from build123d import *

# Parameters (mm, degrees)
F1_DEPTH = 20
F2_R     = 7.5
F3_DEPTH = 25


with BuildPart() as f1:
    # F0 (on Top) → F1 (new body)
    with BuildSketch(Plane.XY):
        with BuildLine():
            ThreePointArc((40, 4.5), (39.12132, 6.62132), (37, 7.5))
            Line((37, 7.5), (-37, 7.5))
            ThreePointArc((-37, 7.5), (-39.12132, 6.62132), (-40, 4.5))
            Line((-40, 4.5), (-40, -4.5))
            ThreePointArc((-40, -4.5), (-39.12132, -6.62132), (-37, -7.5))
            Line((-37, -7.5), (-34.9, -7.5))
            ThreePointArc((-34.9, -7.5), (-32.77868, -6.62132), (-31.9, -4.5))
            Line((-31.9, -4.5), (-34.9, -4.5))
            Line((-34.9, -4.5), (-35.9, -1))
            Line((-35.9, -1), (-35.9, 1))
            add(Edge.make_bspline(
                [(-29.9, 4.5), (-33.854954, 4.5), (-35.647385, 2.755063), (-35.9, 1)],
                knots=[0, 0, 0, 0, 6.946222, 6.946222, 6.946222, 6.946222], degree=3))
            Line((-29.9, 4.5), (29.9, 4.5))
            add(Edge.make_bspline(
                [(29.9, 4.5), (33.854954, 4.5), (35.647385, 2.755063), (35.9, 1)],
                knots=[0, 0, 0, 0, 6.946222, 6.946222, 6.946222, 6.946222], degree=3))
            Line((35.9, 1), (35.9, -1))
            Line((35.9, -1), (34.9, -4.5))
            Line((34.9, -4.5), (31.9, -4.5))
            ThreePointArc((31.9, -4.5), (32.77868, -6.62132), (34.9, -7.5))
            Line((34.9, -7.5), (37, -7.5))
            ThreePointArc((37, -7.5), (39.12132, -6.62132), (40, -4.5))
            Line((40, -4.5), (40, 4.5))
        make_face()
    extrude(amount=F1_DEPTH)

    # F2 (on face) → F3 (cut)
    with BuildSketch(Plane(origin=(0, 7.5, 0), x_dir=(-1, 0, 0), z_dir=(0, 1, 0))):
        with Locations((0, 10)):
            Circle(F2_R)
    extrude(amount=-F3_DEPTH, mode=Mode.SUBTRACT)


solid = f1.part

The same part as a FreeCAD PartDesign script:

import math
import FreeCAD as App
import Part
import Sketcher

doc = App.newDocument("Part")
body = doc.addObject("PartDesign::Body", "Body")

# Sketch on XY plane
sketch1 = body.newObject("Sketcher::SketchObject", "Sketch")
sketch1.AttachmentSupport = (doc.getObject("XY_Plane"), [""])
sketch1.MapMode = "FlatFace"
sketch1.addGeometry(Part.ArcOfCircle(Part.Circle(App.Vector(36.999999, 4.499999, 0), App.Vector(0, 0, 1), 3.000001), math.radians(0.000022), math.radians(89.999978)), False)
sketch1.addGeometry(Part.LineSegment(App.Vector(37, 7.5, 0), App.Vector(-37, 7.5, 0)), False)
sketch1.addGeometry(Part.ArcOfCircle(Part.Circle(App.Vector(-36.999999, 4.499999, 0), App.Vector(0, 0, 1), 3.000001), math.radians(90.000022), math.radians(179.999978)), False)
sketch1.addGeometry(Part.LineSegment(App.Vector(-40, 4.5, 0), App.Vector(-40, -4.5, 0)), False)
sketch1.addGeometry(Part.ArcOfCircle(Part.Circle(App.Vector(-36.999999, -4.499999, 0), App.Vector(0, 0, 1), 3.000001), math.radians(-179.999978), math.radians(-90.000022)), False)
sketch1.addGeometry(Part.LineSegment(App.Vector(-37, -7.5, 0), App.Vector(-34.9, -7.5, 0)), False)
sketch1.addGeometry(Part.ArcOfCircle(Part.Circle(App.Vector(-34.900001, -4.499999, 0), App.Vector(0, 0, 1), 3.000001), math.radians(-89.999978), math.radians(-0.000022)), False)
sketch1.addGeometry(Part.LineSegment(App.Vector(-31.9, -4.5, 0), App.Vector(-34.9, -4.5, 0)), False)
sketch1.addGeometry(Part.LineSegment(App.Vector(-34.9, -4.5, 0), App.Vector(-35.9, -1, 0)), False)
sketch1.addGeometry(Part.LineSegment(App.Vector(-35.9, -1, 0), App.Vector(-35.9, 1, 0)), False)
sketch1.addGeometry(Part.BSplineCurve([App.Vector(-29.9, 4.5, 0), App.Vector(-33.854954, 4.5, 0), App.Vector(-35.647385, 2.755063, 0), App.Vector(-35.9, 1, 0)], [4, 4], [0, 6.946222], False, 3, [1, 1, 1, 1], False), False)
sketch1.addGeometry(Part.LineSegment(App.Vector(-29.9, 4.5, 0), App.Vector(29.9, 4.5, 0)), False)
sketch1.addGeometry(Part.BSplineCurve([App.Vector(29.9, 4.5, 0), App.Vector(33.854954, 4.5, 0), App.Vector(35.647385, 2.755063, 0), App.Vector(35.9, 1, 0)], [4, 4], [0, 6.946222], False, 3, [1, 1, 1, 1], False), False)
sketch1.addGeometry(Part.LineSegment(App.Vector(35.9, 1, 0), App.Vector(35.9, -1, 0)), False)
sketch1.addGeometry(Part.LineSegment(App.Vector(35.9, -1, 0), App.Vector(34.9, -4.5, 0)), False)
sketch1.addGeometry(Part.LineSegment(App.Vector(34.9, -4.5, 0), App.Vector(31.9, -4.5, 0)), False)
sketch1.addGeometry(Part.ArcOfCircle(Part.Circle(App.Vector(34.900001, -4.499999, 0), App.Vector(0, 0, 1), 3.000001), math.radians(-179.999978), math.radians(-90.000022)), False)
sketch1.addGeometry(Part.LineSegment(App.Vector(34.9, -7.5, 0), App.Vector(37, -7.5, 0)), False)
sketch1.addGeometry(Part.ArcOfCircle(Part.Circle(App.Vector(36.999999, -4.499999, 0), App.Vector(0, 0, 1), 3.000001), math.radians(-89.999978), math.radians(-0.000022)), False)
sketch1.addGeometry(Part.LineSegment(App.Vector(40, -4.5, 0), App.Vector(40, 4.5, 0)), False)
sketch1.addConstraint(Sketcher.Constraint("Block", 10))
sketch1.addConstraint(Sketcher.Constraint("Block", 12))
sketch1.addConstraint(Sketcher.Constraint("Tangent", 0, 2, 1, 1))
sketch1.addConstraint(Sketcher.Constraint("Tangent", 1, 2, 2, 1))
sketch1.addConstraint(Sketcher.Constraint("Tangent", 2, 2, 3, 1))
sketch1.addConstraint(Sketcher.Constraint("Tangent", 3, 2, 4, 1))
sketch1.addConstraint(Sketcher.Constraint("Tangent", 4, 2, 5, 1))
sketch1.addConstraint(Sketcher.Constraint("Tangent", 5, 2, 6, 1))
sketch1.addConstraint(Sketcher.Constraint("Coincident", 6, 2, 7, 1))
sketch1.addConstraint(Sketcher.Constraint("Coincident", 7, 2, 8, 1))
sketch1.addConstraint(Sketcher.Constraint("Coincident", 8, 2, 9, 1))
sketch1.addConstraint(Sketcher.Constraint("Coincident", 9, 2, 10, 2))
sketch1.addConstraint(Sketcher.Constraint("Coincident", 10, 1, 11, 1))
sketch1.addConstraint(Sketcher.Constraint("Coincident", 11, 2, 12, 1))
sketch1.addConstraint(Sketcher.Constraint("Coincident", 12, 2, 13, 1))
sketch1.addConstraint(Sketcher.Constraint("Coincident", 13, 2, 14, 1))
sketch1.addConstraint(Sketcher.Constraint("Coincident", 14, 2, 15, 1))
sketch1.addConstraint(Sketcher.Constraint("Coincident", 15, 2, 16, 1))
sketch1.addConstraint(Sketcher.Constraint("Tangent", 16, 2, 17, 1))
sketch1.addConstraint(Sketcher.Constraint("Tangent", 17, 2, 18, 1))
sketch1.addConstraint(Sketcher.Constraint("Tangent", 18, 2, 19, 1))
sketch1.addConstraint(Sketcher.Constraint("Tangent", 19, 2, 0, 1))
sketch1.addConstraint(Sketcher.Constraint("Horizontal", 1))
sketch1.addConstraint(Sketcher.Constraint("Vertical", 3))
sketch1.addConstraint(Sketcher.Constraint("Horizontal", 5))
sketch1.addConstraint(Sketcher.Constraint("Horizontal", 7))
sketch1.addConstraint(Sketcher.Constraint("Vertical", 9))
sketch1.addConstraint(Sketcher.Constraint("Vertical", 13))
sketch1.addConstraint(Sketcher.Constraint("Horizontal", 15))
sketch1.addConstraint(Sketcher.Constraint("Horizontal", 17))
sketch1.addConstraint(Sketcher.Constraint("Vertical", 19))
sketch1.addConstraint(Sketcher.Constraint("Coincident", 7, 2, 6, 3))
sketch1.addConstraint(Sketcher.Constraint("Coincident", 14, 2, 16, 3))
sketch1.addConstraint(Sketcher.Constraint("Equal", 0, 2))
sketch1.addConstraint(Sketcher.Constraint("Equal", 2, 4))
sketch1.addConstraint(Sketcher.Constraint("Equal", 4, 6))
sketch1.addConstraint(Sketcher.Constraint("Equal", 6, 16))
sketch1.addConstraint(Sketcher.Constraint("Equal", 16, 18))
sketch1.addConstraint(Sketcher.Constraint("Symmetric", 0, 3, 4, 3, -1, 1))
sketch1.addConstraint(Sketcher.Constraint("Symmetric", 6, 3, 16, 3, -2))
sketch1.addConstraint(Sketcher.Constraint("Horizontal", 2, 2, 11, 2))
sketch1.addConstraint(Sketcher.Constraint("Horizontal", 8, 2, 13, 2))
sketch1.addConstraint(Sketcher.Constraint("Radius", 0, 3.000001))
sketch1.addConstraint(Sketcher.Constraint("DistanceX", 1, 2, 1, 1, 74.0))
sketch1.addConstraint(Sketcher.Constraint("DistanceY", 9, 1, 9, 2, 2.0))
sketch1.addConstraint(Sketcher.Constraint("DistanceX", 5, 1, 5, 2, 2.1))
pad1 = body.newObject("PartDesign::Pad", "Pad")
pad1.Profile = sketch1
pad1.Length = 20

# Sketch on XZ plane
sketch2 = body.newObject("Sketcher::SketchObject", "Sketch001")
sketch2.AttachmentSupport = (doc.getObject("XZ_Plane"), [""])
sketch2.MapMode = "FlatFace"
sketch2.AttachmentOffset = App.Placement(App.Vector(0, 0, -7.5), App.Rotation())
sketch2.addGeometry(Part.Circle(App.Vector(0, 10, 0), App.Vector(0, 0, 1), 7.5), False)
sketch2.addConstraint(Sketcher.Constraint("PointOnObject", 0, 3, -2))
sketch2.addConstraint(Sketcher.Constraint("Diameter", 0, 15.0))
sketch2.addConstraint(Sketcher.Constraint("DistanceY", -1, 1, 0, 3, 10.0))
pocket1 = body.newObject("PartDesign::Pocket", "Pocket")
pocket1.Profile = sketch2
pocket1.Length = 25
pocket1.Reversed = True

doc.recompute()
